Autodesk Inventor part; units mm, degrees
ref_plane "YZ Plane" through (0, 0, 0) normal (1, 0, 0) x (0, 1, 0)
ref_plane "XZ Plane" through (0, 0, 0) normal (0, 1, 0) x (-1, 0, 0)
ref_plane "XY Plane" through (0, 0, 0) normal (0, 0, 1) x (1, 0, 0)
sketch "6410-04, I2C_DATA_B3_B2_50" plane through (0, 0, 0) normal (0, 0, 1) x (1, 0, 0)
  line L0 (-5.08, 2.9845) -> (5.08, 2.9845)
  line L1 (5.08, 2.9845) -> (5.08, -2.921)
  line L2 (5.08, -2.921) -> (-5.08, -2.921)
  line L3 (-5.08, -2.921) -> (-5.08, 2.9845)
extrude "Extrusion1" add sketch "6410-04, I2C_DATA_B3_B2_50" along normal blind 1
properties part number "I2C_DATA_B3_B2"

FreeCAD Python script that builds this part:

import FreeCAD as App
import Part
import Sketcher

doc = App.newDocument("Part")
params = doc.addObject("Spreadsheet::Sheet", "Params")
for row, (alias, value) in enumerate([
    ("sketch1_width", "10.16 mm"),
    ("pad1_length", "1 mm"),
], start=1):
    params.set(f"A{row}", alias)
    params.set(f"B{row}", "=" + value)
    params.setAlias(f"B{row}", alias)

body = doc.addObject("PartDesign::Body", "Body")

# Sketch on XY plane
sketch1 = body.newObject("Sketcher::SketchObject", "Sketch")
sketch1.AttachmentSupport = (doc.getObject("XY_Plane"), [""])
sketch1.MapMode = "FlatFace"
sketch1.addGeometry([
    Part.LineSegment(App.Vector(5, 3, 0), App.Vector(-5, 3, 0)),
    Part.LineSegment(App.Vector(-5, 3, 0), App.Vector(-5, -3, 0)),
    Part.LineSegment(App.Vector(-5, -3, 0), App.Vector(5, -3, 0)),
    Part.LineSegment(App.Vector(5, -3, 0), App.Vector(5, 3, 0)),
], False)
sketch1.addConstraint([
    Sketcher.Constraint("Coincident", 0, 2, 1, 1),
    Sketcher.Constraint("Coincident", 1, 2, 2, 1),
    Sketcher.Constraint("Coincident", 2, 2, 3, 1),
    Sketcher.Constraint("Coincident", 3, 2, 0, 1),
    Sketcher.Constraint("Horizontal", 0),
    Sketcher.Constraint("Vertical", 1),
    Sketcher.Constraint("Horizontal", 2),
    Sketcher.Constraint("Vertical", 3),
    Sketcher.Constraint("DistanceX", 0, 2, 0, 1, 10.16),
    Sketcher.Constraint("DistanceX", 0, 2, -1, 1, 5.08),
    Sketcher.Constraint("DistanceY", 1, 2, 1, 1, 5.9055),
    Sketcher.Constraint("DistanceY", 1, 2, -1, 1, 2.921),
])
sketch1.setExpression("Constraints[8]", "Params.sketch1_width")
pad1 = body.newObject("PartDesign::Pad", "Pad")
pad1.Profile = sketch1
pad1.setExpression("Length", "Params.pad1_length")

doc.recompute()
